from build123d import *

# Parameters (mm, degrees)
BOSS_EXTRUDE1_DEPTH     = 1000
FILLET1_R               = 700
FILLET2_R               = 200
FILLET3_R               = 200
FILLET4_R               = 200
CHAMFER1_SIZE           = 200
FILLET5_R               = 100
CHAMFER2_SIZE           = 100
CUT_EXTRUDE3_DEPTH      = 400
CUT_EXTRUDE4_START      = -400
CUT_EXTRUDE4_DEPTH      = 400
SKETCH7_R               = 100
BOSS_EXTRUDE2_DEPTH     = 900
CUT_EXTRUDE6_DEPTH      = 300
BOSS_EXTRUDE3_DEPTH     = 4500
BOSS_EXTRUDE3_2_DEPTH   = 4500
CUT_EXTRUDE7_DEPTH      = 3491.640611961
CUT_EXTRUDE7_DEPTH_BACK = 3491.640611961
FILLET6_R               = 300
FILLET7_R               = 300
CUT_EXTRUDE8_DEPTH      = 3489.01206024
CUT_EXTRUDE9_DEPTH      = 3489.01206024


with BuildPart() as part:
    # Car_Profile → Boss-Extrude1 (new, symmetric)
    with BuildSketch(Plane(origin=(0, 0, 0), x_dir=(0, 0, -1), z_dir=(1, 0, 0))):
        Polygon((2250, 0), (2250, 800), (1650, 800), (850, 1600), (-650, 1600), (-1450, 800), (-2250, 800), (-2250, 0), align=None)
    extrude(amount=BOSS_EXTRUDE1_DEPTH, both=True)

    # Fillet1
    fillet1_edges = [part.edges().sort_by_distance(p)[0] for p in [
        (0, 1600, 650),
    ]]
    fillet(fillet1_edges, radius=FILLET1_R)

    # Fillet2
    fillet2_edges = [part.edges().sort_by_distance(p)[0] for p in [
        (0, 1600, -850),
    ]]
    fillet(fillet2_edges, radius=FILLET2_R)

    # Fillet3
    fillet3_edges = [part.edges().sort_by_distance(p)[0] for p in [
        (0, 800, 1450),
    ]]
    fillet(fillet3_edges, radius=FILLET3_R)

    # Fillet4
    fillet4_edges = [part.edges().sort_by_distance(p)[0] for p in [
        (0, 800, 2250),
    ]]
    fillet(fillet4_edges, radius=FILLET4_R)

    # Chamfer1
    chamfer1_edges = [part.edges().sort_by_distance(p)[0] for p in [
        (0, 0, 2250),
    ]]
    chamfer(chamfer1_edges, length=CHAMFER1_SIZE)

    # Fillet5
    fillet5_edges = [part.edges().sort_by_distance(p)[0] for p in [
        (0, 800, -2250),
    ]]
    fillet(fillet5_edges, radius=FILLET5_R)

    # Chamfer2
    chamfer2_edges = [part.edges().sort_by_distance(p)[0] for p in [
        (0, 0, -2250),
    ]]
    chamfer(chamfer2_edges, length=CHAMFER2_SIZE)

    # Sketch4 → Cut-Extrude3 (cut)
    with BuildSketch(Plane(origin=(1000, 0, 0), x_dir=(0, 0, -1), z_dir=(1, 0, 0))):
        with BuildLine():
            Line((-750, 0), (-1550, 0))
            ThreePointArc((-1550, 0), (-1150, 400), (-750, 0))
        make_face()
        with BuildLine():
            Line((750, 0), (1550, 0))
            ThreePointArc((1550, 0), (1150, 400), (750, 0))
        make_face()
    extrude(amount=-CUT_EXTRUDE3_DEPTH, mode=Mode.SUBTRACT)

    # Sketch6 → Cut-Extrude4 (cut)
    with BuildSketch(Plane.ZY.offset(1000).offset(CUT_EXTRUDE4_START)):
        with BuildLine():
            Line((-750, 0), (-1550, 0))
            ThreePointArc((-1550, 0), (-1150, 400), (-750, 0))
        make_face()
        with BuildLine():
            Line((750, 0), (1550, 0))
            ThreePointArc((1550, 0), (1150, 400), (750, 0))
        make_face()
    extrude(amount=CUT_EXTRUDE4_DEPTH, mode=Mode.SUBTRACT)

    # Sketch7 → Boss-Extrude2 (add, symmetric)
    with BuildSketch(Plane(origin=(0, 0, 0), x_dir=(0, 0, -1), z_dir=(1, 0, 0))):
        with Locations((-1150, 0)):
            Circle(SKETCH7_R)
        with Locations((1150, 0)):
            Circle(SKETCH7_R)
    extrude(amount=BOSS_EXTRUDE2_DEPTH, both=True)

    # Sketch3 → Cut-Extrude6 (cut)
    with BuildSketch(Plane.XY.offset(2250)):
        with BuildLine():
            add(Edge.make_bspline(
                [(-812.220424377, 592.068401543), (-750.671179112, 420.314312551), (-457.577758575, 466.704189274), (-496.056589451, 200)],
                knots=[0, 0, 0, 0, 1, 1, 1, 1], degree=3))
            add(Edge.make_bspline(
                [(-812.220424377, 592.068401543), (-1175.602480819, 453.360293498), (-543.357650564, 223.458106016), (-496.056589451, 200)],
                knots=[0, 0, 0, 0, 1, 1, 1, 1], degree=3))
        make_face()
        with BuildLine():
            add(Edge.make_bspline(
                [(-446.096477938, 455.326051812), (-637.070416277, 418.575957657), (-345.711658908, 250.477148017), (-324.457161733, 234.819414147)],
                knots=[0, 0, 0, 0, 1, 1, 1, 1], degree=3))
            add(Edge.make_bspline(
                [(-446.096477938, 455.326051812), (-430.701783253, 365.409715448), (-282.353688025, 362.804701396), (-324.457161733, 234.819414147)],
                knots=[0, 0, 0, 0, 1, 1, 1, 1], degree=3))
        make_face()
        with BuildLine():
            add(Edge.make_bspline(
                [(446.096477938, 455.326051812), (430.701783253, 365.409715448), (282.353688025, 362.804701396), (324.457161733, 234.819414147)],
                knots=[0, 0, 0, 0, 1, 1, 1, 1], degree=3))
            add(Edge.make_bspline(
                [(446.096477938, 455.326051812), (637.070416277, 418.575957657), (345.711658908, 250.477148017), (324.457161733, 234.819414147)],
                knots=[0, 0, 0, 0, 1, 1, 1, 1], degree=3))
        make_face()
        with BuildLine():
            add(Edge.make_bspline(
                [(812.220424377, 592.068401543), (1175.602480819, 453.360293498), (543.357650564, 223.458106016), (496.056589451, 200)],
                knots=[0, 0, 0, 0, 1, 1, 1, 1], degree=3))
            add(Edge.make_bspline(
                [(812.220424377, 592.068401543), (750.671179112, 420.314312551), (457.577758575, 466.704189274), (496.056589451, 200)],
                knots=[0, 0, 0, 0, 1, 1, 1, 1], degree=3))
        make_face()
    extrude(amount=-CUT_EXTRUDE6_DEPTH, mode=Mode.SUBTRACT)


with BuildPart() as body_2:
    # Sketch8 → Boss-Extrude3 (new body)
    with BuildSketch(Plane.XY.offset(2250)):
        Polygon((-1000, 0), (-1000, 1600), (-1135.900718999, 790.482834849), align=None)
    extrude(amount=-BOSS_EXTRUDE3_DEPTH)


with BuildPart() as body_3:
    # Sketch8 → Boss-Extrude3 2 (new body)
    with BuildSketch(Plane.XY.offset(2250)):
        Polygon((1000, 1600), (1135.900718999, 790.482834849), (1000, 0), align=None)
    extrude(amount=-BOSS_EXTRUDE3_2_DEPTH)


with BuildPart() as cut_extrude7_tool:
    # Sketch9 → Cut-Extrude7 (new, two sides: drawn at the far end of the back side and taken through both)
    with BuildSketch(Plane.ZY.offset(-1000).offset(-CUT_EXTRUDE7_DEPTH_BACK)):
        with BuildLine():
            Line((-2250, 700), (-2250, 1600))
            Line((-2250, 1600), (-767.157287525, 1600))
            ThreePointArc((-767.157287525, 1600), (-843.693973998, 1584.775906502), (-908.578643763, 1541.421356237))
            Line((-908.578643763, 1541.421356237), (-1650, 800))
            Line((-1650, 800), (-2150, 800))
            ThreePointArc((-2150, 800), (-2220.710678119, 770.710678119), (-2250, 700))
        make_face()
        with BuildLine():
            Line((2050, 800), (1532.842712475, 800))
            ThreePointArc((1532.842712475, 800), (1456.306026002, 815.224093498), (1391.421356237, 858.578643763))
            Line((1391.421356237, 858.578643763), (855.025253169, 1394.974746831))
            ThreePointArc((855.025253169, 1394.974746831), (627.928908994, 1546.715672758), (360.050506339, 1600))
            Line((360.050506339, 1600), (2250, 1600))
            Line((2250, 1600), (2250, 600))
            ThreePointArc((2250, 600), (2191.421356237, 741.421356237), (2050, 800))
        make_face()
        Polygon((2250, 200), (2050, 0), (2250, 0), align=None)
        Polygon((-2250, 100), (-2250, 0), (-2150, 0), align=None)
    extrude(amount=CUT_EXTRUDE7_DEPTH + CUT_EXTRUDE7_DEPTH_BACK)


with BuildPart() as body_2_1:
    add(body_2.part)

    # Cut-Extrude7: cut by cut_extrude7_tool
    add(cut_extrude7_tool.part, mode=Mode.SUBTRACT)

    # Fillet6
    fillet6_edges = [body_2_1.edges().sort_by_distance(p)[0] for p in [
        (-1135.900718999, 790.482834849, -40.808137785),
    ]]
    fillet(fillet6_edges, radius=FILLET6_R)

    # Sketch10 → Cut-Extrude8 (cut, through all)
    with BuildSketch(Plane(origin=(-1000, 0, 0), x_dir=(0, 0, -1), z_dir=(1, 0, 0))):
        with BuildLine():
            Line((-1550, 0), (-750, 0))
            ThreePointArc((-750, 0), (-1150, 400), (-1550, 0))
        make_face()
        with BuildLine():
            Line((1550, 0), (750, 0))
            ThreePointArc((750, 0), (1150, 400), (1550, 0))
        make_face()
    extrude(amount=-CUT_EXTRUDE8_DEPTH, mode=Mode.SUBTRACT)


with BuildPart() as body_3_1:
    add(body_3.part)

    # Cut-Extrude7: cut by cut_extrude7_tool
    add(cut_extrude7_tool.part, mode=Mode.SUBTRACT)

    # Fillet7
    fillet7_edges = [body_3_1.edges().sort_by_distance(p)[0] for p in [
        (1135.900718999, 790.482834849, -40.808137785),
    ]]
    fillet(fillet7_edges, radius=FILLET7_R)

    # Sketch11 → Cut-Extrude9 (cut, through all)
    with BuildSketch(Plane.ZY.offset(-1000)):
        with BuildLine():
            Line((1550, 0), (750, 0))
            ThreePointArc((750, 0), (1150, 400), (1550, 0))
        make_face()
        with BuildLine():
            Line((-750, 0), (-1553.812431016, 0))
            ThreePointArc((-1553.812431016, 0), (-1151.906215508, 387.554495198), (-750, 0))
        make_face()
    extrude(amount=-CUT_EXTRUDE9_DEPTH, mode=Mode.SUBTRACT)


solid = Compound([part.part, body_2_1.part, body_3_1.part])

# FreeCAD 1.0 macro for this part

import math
import FreeCAD as App
import Part
import Sketcher
from FreeCAD import Vector


def edges_at(feature, points):
    """Names of the edges that pass closest to the given points."""
    edges = feature.Shape.Edges
    near = lambda p: min(range(len(edges)), key=lambda i: edges[i].distToShape(Part.Vertex(*p))[0])
    return sorted({f"Edge{near(p) + 1}" for p in points})


def add_polygon(sketch, points):
    """Adds a closed chain of lines whose ends are joined by coincident constraints."""
    first, n = sketch.GeometryCount, len(points)
    for a, b in zip(points, points[1:] + points[:1]):
        sketch.addGeometry(Part.LineSegment(App.Vector(*a, 0), App.Vector(*b, 0)), False)
    for i in range(n):
        sketch.addConstraint(Sketcher.Constraint("Coincident", first + i, 2, first + (i + 1) % n, 1))

doc = App.newDocument("Part")
body = doc.addObject("PartDesign::Body", "Body")

# Sketch on YZ plane
sketch1 = doc.addObject("Sketcher::SketchObject", "Sketch")
body.addObject(sketch1)
sketch1.AttachmentSupport = (doc.YZ_Plane, [""])
sketch1.MapMode = "FlatFace"
add_polygon(sketch1, [(0, -2250), (800, -2250), (800, -1650), (1600, -850), (1600, 650), (800, 1450), (800, 2250), (0, 2250)])  # lines 0-7
sketch1.addConstraint([
    Sketcher.Constraint("Horizontal", 0),
    Sketcher.Constraint("Vertical", 1),
    Sketcher.Constraint("Vertical", 3),
    Sketcher.Constraint("Vertical", 5),
    Sketcher.Constraint("Horizontal", 6),
    Sketcher.Constraint("Vertical", 7),
    Sketcher.Constraint("Symmetric", 6, 2, 7, 2, -1, 1),
    Sketcher.Constraint("Perpendicular", 2, 4),
    Sketcher.Constraint("Vertical", 1, 2, 4, 2),
    Sketcher.Constraint("Equal", 6, 5),
    Sketcher.Constraint("Equal", 2, 4),
    Sketcher.Constraint("DistanceX", 0, 1, 0, 2, 800.0),
    Sketcher.Constraint("DistanceY", 1, 1, 1, 2, 600.0),
    Sketcher.Constraint("DistanceY", 3, 1, 3, 2, 1500.0),
    Sketcher.Constraint("DistanceY", 7, 2, 7, 1, 4500.0),
])
pad1 = doc.addObject("PartDesign::Pad", "Pad")
body.addObject(pad1)
pad1.Profile = sketch1
pad1.Length = 2000
pad1.Midplane = True
doc.recompute()

fillet = doc.addObject("PartDesign::Fillet", "Fillet")
body.addObject(fillet)
fillet.Base = (pad1, edges_at(pad1, [(0, 1600, 650)]))
fillet.Radius = 700
doc.recompute()

fillet2 = doc.addObject("PartDesign::Fillet", "Fillet001")
body.addObject(fillet2)
fillet2.Base = (fillet, edges_at(fillet, [(0, 1600, -850)]))
fillet2.Radius = 200
doc.recompute()

fillet3 = doc.addObject("PartDesign::Fillet", "Fillet002")
body.addObject(fillet3)
fillet3.Base = (fillet2, edges_at(fillet2, [(0, 800, 1450)]))
fillet3.Radius = 200
doc.recompute()

fillet4 = doc.addObject("PartDesign::Fillet", "Fillet003")
body.addObject(fillet4)
fillet4.Base = (fillet3, edges_at(fillet3, [(0, 800, 2250)]))
fillet4.Radius = 200
doc.recompute()

chamfer = doc.addObject("PartDesign::Chamfer", "Chamfer")
body.addObject(chamfer)
chamfer.Base = (fillet4, edges_at(fillet4, [(0, 0, 2250)]))
chamfer.Size = 200
doc.recompute()

fillet5 = doc.addObject("PartDesign::Fillet", "Fillet004")
body.addObject(fillet5)
fillet5.Base = (chamfer, edges_at(chamfer, [(0, 800, -2250)]))
fillet5.Radius = 100
doc.recompute()

chamfer2 = doc.addObject("PartDesign::Chamfer", "Chamfer001")
body.addObject(chamfer2)
chamfer2.Base = (fillet5, edges_at(fillet5, [(0, 0, -2250)]))
chamfer2.Size = 100

# Sketch on YZ plane
sketch2 = doc.addObject("Sketcher::SketchObject", "Sketch001")
body.addObject(sketch2)
sketch2.AttachmentSupport = (doc.YZ_Plane, [""])
sketch2.MapMode = "FlatFace"
sketch2.AttachmentOffset = App.Placement(Vector(0, 0, 1000), App.Rotation())
sketch2.addGeometry([
    Part.LineSegment(Vector(0, 1550, 0), Vector(0, 750, 0)),
    Part.ArcOfCircle(Part.Circle(Vector(0, 1150, 0), Vector(0, 0, 1), 400), math.radians(-90), math.radians(90)),
    Part.LineSegment(Vector(0, -750, 0), Vector(0, -1550, 0)),
    Part.ArcOfCircle(Part.Circle(Vector(0, -1150, 0), Vector(0, 0, 1), 400), math.radians(-90), math.radians(90)),
], False)
sketch2.addConstraint([
    Sketcher.Constraint("Coincident", 0, 1, 1, 2),
    Sketcher.Constraint("Coincident", 1, 1, 0, 2),
    Sketcher.Constraint("Coincident", 2, 1, 3, 2),
    Sketcher.Constraint("Coincident", 3, 1, 2, 2),
    Sketcher.Constraint("Vertical", 0),
    Sketcher.Constraint("Vertical", 2),
    Sketcher.Constraint("Equal", 1, 3),
    Sketcher.Constraint("Symmetric", 1, 3, 3, 3, -1, 1),
    Sketcher.Constraint("PointOnObject", 1, 3, -2),
    Sketcher.Constraint("PointOnObject", 0, 1, -2),
    Sketcher.Constraint("PointOnObject", 2, 1, -2),
    Sketcher.Constraint("Radius", 1, 400.0),
    Sketcher.Constraint("DistanceY", -1, 1, 1, 3, 1150.0),
])
pocket1 = doc.addObject("PartDesign::Pocket", "Pocket")
body.addObject(pocket1)
pocket1.Profile = sketch2
pocket1.Length = 400

# Sketch on YZ plane
sketch3 = doc.addObject("Sketcher::SketchObject", "Sketch002")
body.addObject(sketch3)
sketch3.AttachmentSupport = (doc.YZ_Plane, [""])
sketch3.MapMode = "FlatFace"
sketch3.AttachmentOffset = App.Placement(Vector(0, 0, -600), App.Rotation())
sketch3.addGeometry([
    Part.LineSegment(Vector(0, -1550, 0), Vector(0, -750, 0)),
    Part.ArcOfCircle(Part.Circle(Vector(0, -1150, 0), Vector(0, 0, 1), 400), math.radians(-90), math.radians(90)),
    Part.LineSegment(Vector(0, 750, 0), Vector(0, 1550, 0)),
    Part.ArcOfCircle(Part.Circle(Vector(0, 1150, 0), Vector(0, 0, 1), 400), math.radians(-90), math.radians(90)),
], False)
sketch3.addConstraint([
    Sketcher.Constraint("Coincident", 0, 1, 1, 1),
    Sketcher.Constraint("Coincident", 1, 2, 0, 2),
    Sketcher.Constraint("Coincident", 2, 1, 3, 1),
    Sketcher.Constraint("Coincident", 3, 2, 2, 2),
    Sketcher.Constraint("Vertical", 0),
    Sketcher.Constraint("Vertical", 2),
    Sketcher.Constraint("Equal", 1, 3),
    Sketcher.Constraint("Symmetric", 1, 3, 3, 3, -1, 1),
    Sketcher.Constraint("PointOnObject", 1, 3, -2),
    Sketcher.Constraint("PointOnObject", 0, 1, -2),
    Sketcher.Constraint("PointOnObject", 2, 1, -2),
    Sketcher.Constraint("Radius", 1, 400.0),
    Sketcher.Constraint("DistanceY", 1, 3, -1, 1, 1150.0),
])
pocket2 = doc.addObject("PartDesign::Pocket", "Pocket001")
body.addObject(pocket2)
pocket2.Profile = sketch3
pocket2.Length = 400

# Sketch on YZ plane
sketch4 = doc.addObject("Sketcher::SketchObject", "Sketch003")
body.addObject(sketch4)
sketch4.AttachmentSupport = (doc.YZ_Plane, [""])
sketch4.MapMode = "FlatFace"
sketch4.addGeometry([
    Part.Circle(Vector(0, 1150, 0), Vector(0, 0, 1), 100),
    Part.Circle(Vector(0, -1150, 0), Vector(0, 0, 1), 100),
], False)
sketch4.addConstraint([
    Sketcher.Constraint("Equal", 0, 1),
    Sketcher.Constraint("Symmetric", 0, 3, 1, 3, -1, 1),
    Sketcher.Constraint("PointOnObject", 0, 3, -2),
    Sketcher.Constraint("Diameter", 0, 200.0),
    Sketcher.Constraint("DistanceY", -1, 1, 0, 3, 1150.0),
])
pad2 = doc.addObject("PartDesign::Pad", "Pad001")
body.addObject(pad2)
pad2.Profile = sketch4
pad2.Length = 1800
pad2.Midplane = True

# Sketch on XY plane
sketch5 = doc.addObject("Sketcher::SketchObject", "Sketch004")
body.addObject(sketch5)
sketch5.AttachmentSupport = (doc.XY_Plane, [""])
sketch5.MapMode = "FlatFace"
sketch5.AttachmentOffset = App.Placement(Vector(0, 0, 2250), App.Rotation())
sketch5.addGeometry([
    Part.BSplineCurve([Vector(-812.220424, 592.068402, 0), Vector(-750.671179, 420.314313, 0), Vector(-457.577759, 466.704189, 0), Vector(-496.056589, 200, 0)], [4, 4], [0, 1], False, 3, [1, 1, 1, 1], False),  # 0
    Part.BSplineCurve([Vector(-812.220424, 592.068402, 0), Vector(-1175.602481, 453.360293, 0), Vector(-543.357651, 223.458106, 0), Vector(-496.056589, 200, 0)], [4, 4], [0, 1], False, 3, [1, 1, 1, 1], False),  # 1
    Part.BSplineCurve([Vector(-446.096478, 455.326052, 0), Vector(-637.070416, 418.575958, 0), Vector(-345.711659, 250.477148, 0), Vector(-324.457162, 234.819414, 0)], [4, 4], [0, 1], False, 3, [1, 1, 1, 1], False),  # 2
    Part.BSplineCurve([Vector(-446.096478, 455.326052, 0), Vector(-430.701783, 365.409715, 0), Vector(-282.353688, 362.804701, 0), Vector(-324.457162, 234.819414, 0)], [4, 4], [0, 1], False, 3, [1, 1, 1, 1], False),  # 3
    Part.BSplineCurve([Vector(446.096478, 455.326052, 0), Vector(430.701783, 365.409715, 0), Vector(282.353688, 362.804701, 0), Vector(324.457162, 234.819414, 0)], [4, 4], [0, 1], False, 3, [1, 1, 1, 1], False),  # 4
    Part.BSplineCurve([Vector(446.096478, 455.326052, 0), Vector(637.070416, 418.575958, 0), Vector(345.711659, 250.477148, 0), Vector(324.457162, 234.819414, 0)], [4, 4], [0, 1], False, 3, [1, 1, 1, 1], False),  # 5
    Part.BSplineCurve([Vector(812.220424, 592.068402, 0), Vector(1175.602481, 453.360293, 0), Vector(543.357651, 223.458106, 0), Vector(496.056589, 200, 0)], [4, 4], [0, 1], False, 3, [1, 1, 1, 1], False),  # 6
    Part.BSplineCurve([Vector(812.220424, 592.068402, 0), Vector(750.671179, 420.314313, 0), Vector(457.577759, 466.704189, 0), Vector(496.056589, 200, 0)], [4, 4], [0, 1], False, 3, [1, 1, 1, 1], False),  # 7
], False)
sketch5.addConstraint([
    Sketcher.Constraint("Block", 0),
    Sketcher.Constraint("Block", 1),
    Sketcher.Constraint("Block", 2),
    Sketcher.Constraint("Block", 3),
    Sketcher.Constraint("Block", 4),
    Sketcher.Constraint("Block", 5),
    Sketcher.Constraint("Block", 6),
    Sketcher.Constraint("Block", 7),
])
pocket3 = doc.addObject("PartDesign::Pocket", "Pocket002")
body.addObject(pocket3)
pocket3.Profile = sketch5
pocket3.Length = 300
body2 = doc.addObject("PartDesign::Body", "Body001")

# Sketch on XY plane
sketch6 = doc.addObject("Sketcher::SketchObject", "Sketch005")
body2.addObject(sketch6)
sketch6.AttachmentSupport = (doc.getObject("XY_Plane001"), [""])
sketch6.MapMode = "FlatFace"
sketch6.AttachmentOffset = App.Placement(Vector(0, 0, 2250), App.Rotation())
add_polygon(sketch6, [(-1000, 0), (-1000, 1600), (-1136, 790)])  # lines 0-2
sketch6.addConstraint([
    Sketcher.Constraint("Vertical", 0),
    Sketcher.Constraint("PointOnObject", 2, 2, -1),
    Sketcher.Constraint("DistanceY", 0, 1, 0, 2, 1600.0),
    Sketcher.Constraint("DistanceX", 0, 2, -1, 1, 1000.0),
    Sketcher.Constraint("Distance", 2, 802.07987),
    Sketcher.Constraint("DistanceX", 1, 2, -1, 1, 1135.900719),
])
pad3 = doc.addObject("PartDesign::Pad", "Pad002")
body2.addObject(pad3)
pad3.Profile = sketch6
pad3.Length = 4500
pad3.Reversed = True
body3 = doc.addObject("PartDesign::Body", "Body002")

# Sketch on XY plane
sketch7 = doc.addObject("Sketcher::SketchObject", "Sketch006")
body3.addObject(sketch7)
sketch7.AttachmentSupport = (doc.getObject("XY_Plane002"), [""])
sketch7.MapMode = "FlatFace"
sketch7.AttachmentOffset = App.Placement(Vector(0, 0, 2250), App.Rotation())
add_polygon(sketch7, [(1136, 790), (1000, 1600), (1000, 0)])  # lines 0-2
sketch7.addConstraint([
    Sketcher.Constraint("Vertical", 1),
    Sketcher.Constraint("PointOnObject", 1, 2, -1),
    Sketcher.Constraint("DistanceY", 1, 2, 1, 1, 1600.0),
    Sketcher.Constraint("DistanceX", -1, 1, 0, 2, 1000.0),
    Sketcher.Constraint("Distance", 2, 802.07987),
    Sketcher.Constraint("DistanceX", -1, 1, 2, 2, 1135.900719),
])
pad4 = doc.addObject("PartDesign::Pad", "Pad003")
body3.addObject(pad4)
pad4.Profile = sketch7
pad4.Length = 4500
pad4.Reversed = True
body4 = doc.addObject("PartDesign::Body", "Body003")
body4.AllowCompound = True

# Sketch on YZ plane
sketch8 = doc.addObject("Sketcher::SketchObject", "Sketch007")
body4.addObject(sketch8)
sketch8.AttachmentSupport = (doc.getObject("YZ_Plane003"), [""])
sketch8.MapMode = "FlatFace"
sketch8.AttachmentOffset = App.Placement(Vector(0, 0, 1000), App.Rotation())
sketch8.addGeometry(Part.LineSegment(Vector(1600, -2250, 0), Vector(700, -2250, 0)), False)  # 0
sketch8.addGeometry(Part.ArcOfCircle(Part.Circle(Vector(700, -2150, 0), Vector(0, 0, 1), 100), math.radians(-90), math.radians(0)), False)  # 1
sketch8.addGeometry(Part.LineSegment(Vector(800, -2150, 0), Vector(800, -1650, 0)), False)  # 2
sketch8.addGeometry(Part.LineSegment(Vector(800, -1650, 0), Vector(1541, -909, 0)), False)  # 3
sketch8.addGeometry(Part.ArcOfCircle(Part.Circle(Vector(1400, -767, 0), Vector(0, 0, 1), 200), math.radians(-45), math.radians(0)), False)  # 4
sketch8.addGeometry(Part.LineSegment(Vector(1600, -767, 0), Vector(1600, -2250, 0)), False)  # 5
sketch8.addGeometry(Part.LineSegment(Vector(800, 1533, 0), Vector(800, 2050, 0)), False)  # 6
sketch8.addGeometry(Part.ArcOfCircle(Part.Circle(Vector(600, 2050, 0), Vector(0, 0, 1), 200), math.radians(0), math.radians(90)), False)  # 7
sketch8.addGeometry(Part.LineSegment(Vector(600, 2250, 0), Vector(1600, 2250, 0)), False)  # 8
sketch8.addGeometry(Part.LineSegment(Vector(1600, 2250, 0), Vector(1600, 360, 0)), False)  # 9
sketch8.addGeometry(Part.ArcOfCircle(Part.Circle(Vector(900, 360, 0), Vector(0, 0, 1), 700), math.radians(0), math.radians(45)), False)  # 10
sketch8.addGeometry(Part.LineSegment(Vector(1395, 855, 0), Vector(859, 1391, 0)), False)  # 11
sketch8.addGeometry(Part.ArcOfCircle(Part.Circle(Vector(1000, 1533, 0), Vector(0, 0, 1), 200), math.radians(-180), math.radians(-135)), False)  # 12
add_polygon(sketch8, [(200, 2250), (0, 2050), (0, 2250)])  # lines 13-15
add_polygon(sketch8, [(100, -2250), (0, -2250), (0, -2150)])  # lines 16-18
sketch8.addConstraint([
    Sketcher.Constraint("Tangent", 0, 2, 1, 1),
    Sketcher.Constraint("Tangent", 1, 2, 2, 1),
    Sketcher.Constraint("Coincident", 2, 2, 3, 1),
    Sketcher.Constraint("Tangent", 3, 2, 4, 1),
    Sketcher.Constraint("Tangent", 4, 2, 5, 1),
    Sketcher.Constraint("Coincident", 5, 2, 0, 1),
    Sketcher.Constraint("Tangent", 6, 2, 7, 1),
    Sketcher.Constraint("Tangent", 7, 2, 8, 1),
    Sketcher.Constraint("Coincident", 8, 2, 9, 1),
    Sketcher.Constraint("Tangent", 9, 2, 10, 1),
    Sketcher.Constraint("Tangent", 10, 2, 11, 1),
    Sketcher.Constraint("Tangent", 11, 2, 12, 2),
    Sketcher.Constraint("Tangent", 12, 1, 6, 1),
    Sketcher.Constraint("Horizontal", 0),
    Sketcher.Constraint("Vertical", 2),
    Sketcher.Constraint("Vertical", 5),
    Sketcher.Constraint("Vertical", 6),
    Sketcher.Constraint("Horizontal", 8),
    Sketcher.Constraint("Vertical", 9),
    Sketcher.Constraint("Vertical", 14),
    Sketcher.Constraint("Horizontal", 15),
    Sketcher.Constraint("Horizontal", 16),
    Sketcher.Constraint("Vertical", 17),
    Sketcher.Constraint("Equal", 4, 7),
    Sketcher.Constraint("Equal", 7, 12),
    Sketcher.Constraint("Symmetric", 14, 2, 16, 2, -1, 1),
    Sketcher.Constraint("Symmetric", 5, 2, 8, 2, -1),
    Sketcher.Constraint("PointOnObject", 13, 2, -2),
    Sketcher.Constraint("Perpendicular", 3, 11),
    Sketcher.Constraint("Perpendicular", 11, 13),
    Sketcher.Constraint("Perpendicular", 13, 18),
    Sketcher.Constraint("Horizontal", 6, 2, 13, 2),
    Sketcher.Constraint("Horizontal", 8, 2, 14, 2),
    Sketcher.Constraint("Horizontal", 1, 2, 17, 2),
    Sketcher.Constraint("Vertical", 2, 2, 6, 2),
    Sketcher.Constraint("Equal", 15, 14),
    Sketcher.Constraint("Radius", 1, 100.0),
    Sketcher.Constraint("Radius", 4, 200.0),
    Sketcher.Constraint("Radius", 10, 700.0),
    Sketcher.Constraint("DistanceX", 0, 2, 0, 1, 900.0),
    Sketcher.Constraint("DistanceY", 2, 1, 2, 2, 500.0),
    Sketcher.Constraint("DistanceX", -1, 1, 1, 3, 700.0),
    Sketcher.Constraint("DistanceY", 1, 3, -1, 1, 2150.0),
    Sketcher.Constraint("DistanceY", 4, 3, 12, 3, 2300.0),
])
pad5 = doc.addObject("PartDesign::Pad", "Pad004")
body4.addObject(pad5)
pad5.Profile = sketch8
pad5.Type = "TwoLengths"
pad5.Length = 3491.640612
pad5.Length2 = 3491.640612
pad5.Reversed = True
doc.recompute()

body5 = doc.addObject("PartDesign::Body", "Body004")
body5.BaseFeature = body4
boolean = doc.addObject("PartDesign::Boolean", "Boolean")
body2.addObject(boolean)
boolean.Type = "Cut"
boolean.addObjects([body5])
doc.recompute()

fillet6 = doc.addObject("PartDesign::Fillet", "Fillet005")
body2.addObject(fillet6)
fillet6.Base = (boolean, edges_at(boolean, [(-1135.901, 790.483, -40.808)]))
fillet6.Radius = 300

# Sketch on YZ plane
sketch9 = doc.addObject("Sketcher::SketchObject", "Sketch008")
body2.addObject(sketch9)
sketch9.AttachmentSupport = (doc.getObject("YZ_Plane001"), [""])
sketch9.MapMode = "FlatFace"
sketch9.AttachmentOffset = App.Placement(Vector(0, 0, -1000), App.Rotation())
sketch9.addGeometry([
    Part.LineSegment(Vector(0, 1550, 0), Vector(0, 750, 0)),
    Part.ArcOfCircle(Part.Circle(Vector(0, 1150, 0), Vector(0, 0, 1), 400), math.radians(-90), math.radians(90)),
    Part.LineSegment(Vector(0, -750, 0), Vector(0, -1550, 0)),
    Part.ArcOfCircle(Part.Circle(Vector(0, -1150, 0), Vector(0, 0, 1), 400), math.radians(-90), math.radians(90)),
], False)
sketch9.addConstraint([
    Sketcher.Constraint("Coincident", 0, 1, 1, 2),
    Sketcher.Constraint("Coincident", 1, 1, 0, 2),
    Sketcher.Constraint("Coincident", 2, 1, 3, 2),
    Sketcher.Constraint("Coincident", 3, 1, 2, 2),
    Sketcher.Constraint("Vertical", 0),
    Sketcher.Constraint("Vertical", 2),
    Sketcher.Constraint("Equal", 1, 3),
    Sketcher.Constraint("Symmetric", 1, 3, 3, 3, -1, 1),
    Sketcher.Constraint("PointOnObject", 1, 3, -2),
    Sketcher.Constraint("PointOnObject", 0, 1, -2),
    Sketcher.Constraint("PointOnObject", 2, 1, -2),
    Sketcher.Constraint("Radius", 1, 400.0),
    Sketcher.Constraint("DistanceY", -1, 1, 1, 3, 1150.0),
])
pocket4 = doc.addObject("PartDesign::Pocket", "Pocket003")
body2.addObject(pocket4)
pocket4.Profile = sketch9
pocket4.Type = "ThroughAll"
doc.recompute()

boolean2 = doc.addObject("PartDesign::Boolean", "Boolean001")
body3.addObject(boolean2)
boolean2.Type = "Cut"
boolean2.addObjects([body4])
doc.recompute()

fillet7 = doc.addObject("PartDesign::Fillet", "Fillet006")
body3.addObject(fillet7)
fillet7.Base = (boolean2, edges_at(boolean2, [(1135.901, 790.483, -40.808)]))
fillet7.Radius = 300

# Sketch on YZ plane
sketch10 = doc.addObject("Sketcher::SketchObject", "Sketch009")
body3.addObject(sketch10)
sketch10.AttachmentSupport = (doc.getObject("YZ_Plane002"), [""])
sketch10.MapMode = "FlatFace"
sketch10.AttachmentOffset = App.Placement(Vector(0, 0, 1000), App.Rotation())
sketch10.addGeometry([
    Part.LineSegment(Vector(0, 750, 0), Vector(0, 1550, 0)),
    Part.ArcOfCircle(Part.Circle(Vector(0, 1150, 0), Vector(0, 0, 1), 400), math.radians(-90), math.radians(90)),
    Part.LineSegment(Vector(0, -1554, 0), Vector(0, -750, 0)),
    Part.ArcOfCircle(Part.Circle(Vector(-15, -1152, 0), Vector(0, 0, 1), 402), math.radians(-88), math.radians(88)),
], False)
sketch10.addConstraint([
    Sketcher.Constraint("Coincident", 0, 1, 1, 1),
    Sketcher.Constraint("Coincident", 1, 2, 0, 2),
    Sketcher.Constraint("Coincident", 2, 1, 3, 1),
    Sketcher.Constraint("Coincident", 3, 2, 2, 2),
    Sketcher.Constraint("Vertical", 0),
    Sketcher.Constraint("Vertical", 2),
    Sketcher.Constraint("Symmetric", 0, 1, 3, 2, -1, 1),
    Sketcher.Constraint("PointOnObject", 1, 3, -2),
    Sketcher.Constraint("PointOnObject", 0, 1, -2),
    Sketcher.Constraint("Radius", 1, 400.0),
    Sketcher.Constraint("DistanceY", -1, 1, 1, 3, 1150.0),
    Sketcher.Constraint("Radius", 3, 402.171948),
    Sketcher.Constraint("DistanceY", 2, 1, 2, 2, 803.812431),
])
pocket5 = doc.addObject("PartDesign::Pocket", "Pocket004")
body3.addObject(pocket5)
pocket5.Profile = sketch10
pocket5.Type = "ThroughAll"
pocket5.Reversed = True

doc.recompute()
